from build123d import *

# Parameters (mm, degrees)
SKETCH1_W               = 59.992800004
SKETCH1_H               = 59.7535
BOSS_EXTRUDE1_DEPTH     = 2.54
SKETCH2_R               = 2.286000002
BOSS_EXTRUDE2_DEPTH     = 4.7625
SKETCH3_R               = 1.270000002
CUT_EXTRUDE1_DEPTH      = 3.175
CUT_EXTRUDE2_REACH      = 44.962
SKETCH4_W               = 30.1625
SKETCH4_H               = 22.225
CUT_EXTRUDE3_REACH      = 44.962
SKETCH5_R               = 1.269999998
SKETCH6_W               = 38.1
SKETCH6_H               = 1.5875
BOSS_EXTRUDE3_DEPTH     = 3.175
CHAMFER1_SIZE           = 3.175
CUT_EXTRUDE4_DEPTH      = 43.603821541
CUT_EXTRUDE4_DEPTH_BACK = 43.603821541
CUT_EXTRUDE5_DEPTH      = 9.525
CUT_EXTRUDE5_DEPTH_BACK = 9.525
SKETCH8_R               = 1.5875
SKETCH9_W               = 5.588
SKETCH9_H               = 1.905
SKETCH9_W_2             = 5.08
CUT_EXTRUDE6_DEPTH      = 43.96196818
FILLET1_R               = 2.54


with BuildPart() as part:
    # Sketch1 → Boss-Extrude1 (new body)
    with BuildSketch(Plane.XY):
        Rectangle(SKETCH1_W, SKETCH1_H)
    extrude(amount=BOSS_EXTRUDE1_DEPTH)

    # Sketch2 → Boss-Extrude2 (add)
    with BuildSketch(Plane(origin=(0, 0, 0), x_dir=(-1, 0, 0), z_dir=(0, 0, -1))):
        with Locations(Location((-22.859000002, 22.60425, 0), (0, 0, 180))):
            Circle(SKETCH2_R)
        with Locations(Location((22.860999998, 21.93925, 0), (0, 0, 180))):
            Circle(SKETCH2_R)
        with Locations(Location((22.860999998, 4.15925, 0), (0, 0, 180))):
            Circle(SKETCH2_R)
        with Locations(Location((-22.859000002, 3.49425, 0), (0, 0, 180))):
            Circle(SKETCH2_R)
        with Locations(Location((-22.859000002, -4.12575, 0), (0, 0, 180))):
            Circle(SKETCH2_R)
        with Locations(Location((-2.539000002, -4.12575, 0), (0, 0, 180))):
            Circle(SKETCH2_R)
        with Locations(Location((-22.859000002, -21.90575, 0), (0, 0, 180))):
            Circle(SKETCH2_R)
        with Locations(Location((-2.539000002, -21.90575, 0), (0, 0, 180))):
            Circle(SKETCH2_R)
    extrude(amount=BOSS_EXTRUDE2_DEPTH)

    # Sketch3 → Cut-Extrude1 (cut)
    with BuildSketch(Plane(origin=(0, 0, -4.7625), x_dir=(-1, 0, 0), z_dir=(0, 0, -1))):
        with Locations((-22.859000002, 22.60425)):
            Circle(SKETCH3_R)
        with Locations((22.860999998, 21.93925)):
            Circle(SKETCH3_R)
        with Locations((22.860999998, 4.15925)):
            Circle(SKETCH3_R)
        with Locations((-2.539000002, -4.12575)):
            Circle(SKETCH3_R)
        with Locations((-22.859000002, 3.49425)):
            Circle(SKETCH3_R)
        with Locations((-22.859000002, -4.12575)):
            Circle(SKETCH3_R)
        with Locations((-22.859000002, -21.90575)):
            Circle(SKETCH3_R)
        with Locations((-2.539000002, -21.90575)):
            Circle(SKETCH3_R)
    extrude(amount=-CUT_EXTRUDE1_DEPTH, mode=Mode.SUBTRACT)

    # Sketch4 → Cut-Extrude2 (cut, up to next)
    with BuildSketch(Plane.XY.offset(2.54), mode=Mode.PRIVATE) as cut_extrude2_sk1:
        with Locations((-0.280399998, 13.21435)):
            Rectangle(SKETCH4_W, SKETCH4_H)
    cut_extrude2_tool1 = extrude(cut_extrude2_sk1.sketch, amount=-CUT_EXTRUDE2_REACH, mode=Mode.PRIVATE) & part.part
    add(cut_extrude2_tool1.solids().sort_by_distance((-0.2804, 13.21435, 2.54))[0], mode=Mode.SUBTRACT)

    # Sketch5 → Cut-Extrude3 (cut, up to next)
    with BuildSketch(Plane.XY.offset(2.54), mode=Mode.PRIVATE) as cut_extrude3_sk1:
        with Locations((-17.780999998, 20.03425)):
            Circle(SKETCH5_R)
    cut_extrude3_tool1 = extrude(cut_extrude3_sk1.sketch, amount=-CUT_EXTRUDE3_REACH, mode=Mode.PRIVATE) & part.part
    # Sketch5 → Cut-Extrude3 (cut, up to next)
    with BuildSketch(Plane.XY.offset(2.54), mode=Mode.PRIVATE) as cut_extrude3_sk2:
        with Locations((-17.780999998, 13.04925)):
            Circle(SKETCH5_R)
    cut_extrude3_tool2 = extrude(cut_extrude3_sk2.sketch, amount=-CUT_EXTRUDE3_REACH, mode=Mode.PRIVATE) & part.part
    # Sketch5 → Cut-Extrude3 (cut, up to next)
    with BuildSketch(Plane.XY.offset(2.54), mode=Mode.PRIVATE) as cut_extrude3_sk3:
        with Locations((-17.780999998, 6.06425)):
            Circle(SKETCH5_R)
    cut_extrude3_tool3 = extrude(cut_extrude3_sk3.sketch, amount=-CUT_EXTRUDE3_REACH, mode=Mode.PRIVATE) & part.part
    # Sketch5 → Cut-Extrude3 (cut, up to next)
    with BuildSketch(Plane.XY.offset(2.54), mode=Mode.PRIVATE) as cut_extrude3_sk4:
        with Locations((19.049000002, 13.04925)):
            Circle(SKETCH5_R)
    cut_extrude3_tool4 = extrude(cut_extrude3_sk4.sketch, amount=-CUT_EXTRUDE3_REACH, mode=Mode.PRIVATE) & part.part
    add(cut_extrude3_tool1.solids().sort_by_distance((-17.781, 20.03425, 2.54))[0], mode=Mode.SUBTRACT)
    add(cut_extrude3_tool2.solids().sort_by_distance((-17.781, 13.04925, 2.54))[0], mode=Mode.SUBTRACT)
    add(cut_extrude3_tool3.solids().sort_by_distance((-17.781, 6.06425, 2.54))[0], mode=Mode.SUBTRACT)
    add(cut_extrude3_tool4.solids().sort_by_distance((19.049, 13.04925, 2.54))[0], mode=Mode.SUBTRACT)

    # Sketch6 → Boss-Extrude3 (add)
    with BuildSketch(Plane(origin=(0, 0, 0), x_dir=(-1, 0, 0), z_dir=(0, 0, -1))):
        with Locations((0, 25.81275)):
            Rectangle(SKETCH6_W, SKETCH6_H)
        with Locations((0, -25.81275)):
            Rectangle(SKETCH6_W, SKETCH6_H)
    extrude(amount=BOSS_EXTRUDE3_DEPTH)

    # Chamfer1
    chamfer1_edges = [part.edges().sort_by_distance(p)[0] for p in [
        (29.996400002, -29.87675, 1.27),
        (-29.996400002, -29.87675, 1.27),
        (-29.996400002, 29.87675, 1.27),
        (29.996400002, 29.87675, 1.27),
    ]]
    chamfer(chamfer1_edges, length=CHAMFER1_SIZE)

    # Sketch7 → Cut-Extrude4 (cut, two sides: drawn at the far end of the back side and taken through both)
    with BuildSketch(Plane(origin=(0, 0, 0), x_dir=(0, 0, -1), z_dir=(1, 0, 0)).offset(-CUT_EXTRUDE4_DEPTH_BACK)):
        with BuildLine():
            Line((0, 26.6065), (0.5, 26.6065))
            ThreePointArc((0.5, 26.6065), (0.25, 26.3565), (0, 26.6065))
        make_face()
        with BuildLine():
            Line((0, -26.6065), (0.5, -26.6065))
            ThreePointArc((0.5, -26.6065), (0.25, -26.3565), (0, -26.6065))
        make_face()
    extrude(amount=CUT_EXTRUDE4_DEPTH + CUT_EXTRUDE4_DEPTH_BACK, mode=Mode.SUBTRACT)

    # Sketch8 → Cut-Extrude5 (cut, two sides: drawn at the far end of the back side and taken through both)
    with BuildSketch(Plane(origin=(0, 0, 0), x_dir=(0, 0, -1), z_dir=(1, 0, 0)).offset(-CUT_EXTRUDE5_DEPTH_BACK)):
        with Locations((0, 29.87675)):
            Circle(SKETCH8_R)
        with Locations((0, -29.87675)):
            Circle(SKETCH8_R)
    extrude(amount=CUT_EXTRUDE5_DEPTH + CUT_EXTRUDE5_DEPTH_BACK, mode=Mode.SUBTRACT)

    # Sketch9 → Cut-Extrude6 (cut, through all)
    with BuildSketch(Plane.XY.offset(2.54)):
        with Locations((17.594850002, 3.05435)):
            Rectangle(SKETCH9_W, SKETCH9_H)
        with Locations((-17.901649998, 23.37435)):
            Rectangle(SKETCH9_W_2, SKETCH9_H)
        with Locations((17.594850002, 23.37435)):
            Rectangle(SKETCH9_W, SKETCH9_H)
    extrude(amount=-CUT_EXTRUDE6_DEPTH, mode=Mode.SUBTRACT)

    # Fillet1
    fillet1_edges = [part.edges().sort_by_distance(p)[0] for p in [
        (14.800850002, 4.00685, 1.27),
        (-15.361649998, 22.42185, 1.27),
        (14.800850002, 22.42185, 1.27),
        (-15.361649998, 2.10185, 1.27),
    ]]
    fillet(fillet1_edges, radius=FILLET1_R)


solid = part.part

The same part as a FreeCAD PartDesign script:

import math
import FreeCAD as App
import Part
import Sketcher
Q = App.Units.Quantity


def edges_at(feature, points):
    """Names of the edges that pass closest to the given points."""
    edges = feature.Shape.Edges
    near = lambda p: min(range(len(edges)), key=lambda i: edges[i].distToShape(Part.Vertex(*p))[0])
    return sorted({f"Edge{near(p) + 1}" for p in points})

doc = App.newDocument("Part")
body = doc.addObject("PartDesign::Body", "Body")

sketch1 = body.newObject("Sketcher::SketchObject", "Sketch")
sketch1.AttachmentSupport = (doc.getObject("XY_Plane"), [""])
sketch1.MapMode = "FlatFace"
sketch1.addGeometry([
    Part.LineSegment(App.Vector(-30, 30, 0), App.Vector(-30, -30, 0)),
    Part.LineSegment(App.Vector(-30, -30, 0), App.Vector(30, -30, 0)),
    Part.LineSegment(App.Vector(30, -30, 0), App.Vector(30, 30, 0)),
    Part.LineSegment(App.Vector(30, 30, 0), App.Vector(-30, 30, 0)),
], False)
sketch1.addConstraint([
    Sketcher.Constraint("Coincident", 0, 2, 1, 1),
    Sketcher.Constraint("Coincident", 1, 2, 2, 1),
    Sketcher.Constraint("Coincident", 2, 2, 3, 1),
    Sketcher.Constraint("Coincident", 3, 2, 0, 1),
    Sketcher.Constraint("Vertical", 0),
    Sketcher.Constraint("Horizontal", 1),
    Sketcher.Constraint("Vertical", 2),
    Sketcher.Constraint("Horizontal", 3),
    Sketcher.Constraint("Symmetric", 0, 2, 2, 2, -1, 1),
    Sketcher.Constraint("DistanceY", 0, 2, 0, 1, Q("2.3525 in")),
    Sketcher.Constraint("DistanceX", 1, 1, 1, 2, Q("59.9928 mm")),
])
pad1 = body.newObject("PartDesign::Pad", "Pad")
pad1.Profile = sketch1
pad1.Length = Q("0.1 in")

sketch2 = body.newObject("Sketcher::SketchObject", "Sketch001")
sketch2.AttachmentSupport = (doc.getObject("XY_Plane"), [""])
sketch2.MapMode = "FlatFace"
sketch2.addGeometry([
    Part.Circle(App.Vector(22.9, 22.6, 0), App.Vector(0, 0, 1), 2.3),
    Part.Circle(App.Vector(-22.9, 21.9, 0), App.Vector(0, 0, 1), 2.3),
    Part.Circle(App.Vector(-22.9, 4.2, 0), App.Vector(0, 0, 1), 2.3),
    Part.Circle(App.Vector(22.9, 3.5, 0), App.Vector(0, 0, 1), 2.3),
    Part.Circle(App.Vector(22.9, -4.1, 0), App.Vector(0, 0, 1), 2.3),
    Part.Circle(App.Vector(2.5, -4.1, 0), App.Vector(0, 0, 1), 2.3),
    Part.Circle(App.Vector(22.9, -21.9, 0), App.Vector(0, 0, 1), 2.3),
    Part.Circle(App.Vector(2.5, -21.9, 0), App.Vector(0, 0, 1), 2.3),
], False)
sketch2.addConstraint([
    Sketcher.Constraint("Equal", 0, 1),
    Sketcher.Constraint("Equal", 1, 2),
    Sketcher.Constraint("Equal", 2, 3),
    Sketcher.Constraint("Equal", 3, 4),
    Sketcher.Constraint("Equal", 4, 5),
    Sketcher.Constraint("Equal", 5, 6),
    Sketcher.Constraint("Equal", 6, 7),
    Sketcher.Constraint("Horizontal", 4, 3, 5, 3),
    Sketcher.Constraint("Horizontal", 6, 3, 7, 3),
    Sketcher.Constraint("Vertical", 1, 3, 2, 3),
    Sketcher.Constraint("Vertical", 0, 3, 3, 3),
    Sketcher.Constraint("Vertical", 3, 3, 4, 3),
    Sketcher.Constraint("Vertical", 4, 3, 6, 3),
    Sketcher.Constraint("Vertical", 5, 3, 7, 3),
    Sketcher.Constraint("Diameter", 0, Q("0.18 in")),
    Sketcher.Constraint("DistanceX", 2, 3, 5, 3, Q("1 in")),
    Sketcher.Constraint("DistanceY", 6, 3, 3, 3, Q("1 in")),
    Sketcher.Constraint("DistanceX", 1, 3, 0, 3, Q("1.8 in")),
    Sketcher.Constraint("DistanceY", 2, 3, 1, 3, Q("0.7 in")),
    Sketcher.Constraint("DistanceY", 4, 3, 3, 3, Q("0.3 in")),
    Sketcher.Constraint("DistanceX", -1, 1, 0, 3, Q("22.859 mm")),
    Sketcher.Constraint("DistanceY", 1, 3, 0, 3, Q("0.665 mm")),
    Sketcher.Constraint("DistanceY", 3, 3, 0, 3, Q("19.11 mm")),
    Sketcher.Constraint("DistanceY", -1, 1, 0, 3, Q("22.60425 mm")),
])
pad2 = body.newObject("PartDesign::Pad", "Pad001")
pad2.Profile = sketch2
pad2.Length = Q("0.1875 in")
pad2.Reversed = True

sketch3 = body.newObject("Sketcher::SketchObject", "Sketch002")
sketch3.AttachmentSupport = (doc.getObject("XY_Plane"), [""])
sketch3.MapMode = "FlatFace"
sketch3.AttachmentOffset = App.Placement(App.Vector(0, 0, -0.1875 * 25.4), App.Rotation())
sketch3.addGeometry([
    Part.Circle(App.Vector(22.9, 22.6, 0), App.Vector(0, 0, 1), 1.3),
    Part.Circle(App.Vector(-22.9, 21.9, 0), App.Vector(0, 0, 1), 1.3),
    Part.Circle(App.Vector(-22.9, 4.2, 0), App.Vector(0, 0, 1), 1.3),
    Part.Circle(App.Vector(2.5, -4.1, 0), App.Vector(0, 0, 1), 1.3),
    Part.Circle(App.Vector(22.9, 3.5, 0), App.Vector(0, 0, 1), 1.3),
    Part.Circle(App.Vector(22.9, -4.1, 0), App.Vector(0, 0, 1), 1.3),
    Part.Circle(App.Vector(22.9, -21.9, 0), App.Vector(0, 0, 1), 1.3),
    Part.Circle(App.Vector(2.5, -21.9, 0), App.Vector(0, 0, 1), 1.3),
], False)
sketch3.addConstraint([
    Sketcher.Constraint("Equal", 0, 1),
    Sketcher.Constraint("Equal", 1, 2),
    Sketcher.Constraint("Equal", 2, 3),
    Sketcher.Constraint("Equal", 3, 4),
    Sketcher.Constraint("Equal", 4, 5),
    Sketcher.Constraint("Equal", 5, 6),
    Sketcher.Constraint("Equal", 6, 7),
    Sketcher.Constraint("Horizontal", 3, 3, 5, 3),
    Sketcher.Constraint("Horizontal", 6, 3, 7, 3),
    Sketcher.Constraint("Vertical", 1, 3, 2, 3),
    Sketcher.Constraint("Vertical", 0, 3, 4, 3),
    Sketcher.Constraint("Vertical", 4, 3, 5, 3),
    Sketcher.Constraint("Vertical", 5, 3, 6, 3),
    Sketcher.Constraint("Vertical", 3, 3, 7, 3),
    Sketcher.Constraint("Diameter", 0, Q("0.1 in")),
    Sketcher.Constraint("DistanceX", 2, 3, 3, 3, Q("1 in")),
    Sketcher.Constraint("DistanceY", 6, 3, 4, 3, Q("1 in")),
    Sketcher.Constraint("DistanceX", 1, 3, 0, 3, Q("1.8 in")),
    Sketcher.Constraint("DistanceY", 2, 3, 1, 3, Q("0.7 in")),
    Sketcher.Constraint("DistanceY", 3, 3, 4, 3, Q("0.3 in")),
    Sketcher.Constraint("DistanceX", -1, 1, 0, 3, Q("22.859 mm")),
    Sketcher.Constraint("DistanceY", 1, 3, 0, 3, Q("0.665 mm")),
    Sketcher.Constraint("DistanceY", 3, 3, 2, 3, Q("8.285 mm")),
    Sketcher.Constraint("DistanceY", -1, 1, 0, 3, Q("22.60425 mm")),
])
pocket1 = body.newObject("PartDesign::Pocket", "Pocket")
pocket1.Profile = sketch3
pocket1.Length = Q("0.125 in")
pocket1.Reversed = True

sketch4 = body.newObject("Sketcher::SketchObject", "Sketch003")
sketch4.AttachmentSupport = (doc.getObject("XY_Plane"), [""])
sketch4.MapMode = "FlatFace"
sketch4.AttachmentOffset = App.Placement(App.Vector(0, 0, 0.1 * 25.4), App.Rotation())
sketch4.addGeometry([
    Part.LineSegment(App.Vector(-15, 24, 0), App.Vector(-15, 2, 0)),
    Part.LineSegment(App.Vector(-15, 2, 0), App.Vector(15, 2, 0)),
    Part.LineSegment(App.Vector(15, 2, 0), App.Vector(15, 24, 0)),
    Part.LineSegment(App.Vector(15, 24, 0), App.Vector(-15, 24, 0)),
], False)
sketch4.addConstraint([
    Sketcher.Constraint("Coincident", 0, 2, 1, 1),
    Sketcher.Constraint("Coincident", 1, 2, 2, 1),
    Sketcher.Constraint("Coincident", 2, 2, 3, 1),
    Sketcher.Constraint("Coincident", 3, 2, 0, 1),
    Sketcher.Constraint("Vertical", 0),
    Sketcher.Constraint("Horizontal", 1),
    Sketcher.Constraint("Vertical", 2),
    Sketcher.Constraint("Horizontal", 3),
    Sketcher.Constraint("DistanceX", 1, 1, 1, 2, Q("1.1875 in")),
    Sketcher.Constraint("DistanceY", 0, 2, 0, 1, Q("0.875 in")),
    Sketcher.Constraint("DistanceX", 0, 2, -1, 1, Q("15.36165 mm")),
    Sketcher.Constraint("DistanceY", -1, 1, 0, 2, Q("2.10185 mm")),
])
pocket2 = body.newObject("PartDesign::Pocket", "Pocket001")
pocket2.Profile = sketch4
pocket2.Type = "UpToFirst"

sketch5 = body.newObject("Sketcher::SketchObject", "Sketch004")
sketch5.AttachmentSupport = (doc.getObject("XY_Plane"), [""])
sketch5.MapMode = "FlatFace"
sketch5.AttachmentOffset = App.Placement(App.Vector(0, 0, 0.1 * 25.4), App.Rotation())
sketch5.addGeometry(Part.Circle(App.Vector(-17.8, 20, 0), App.Vector(0, 0, 1), 1.3), False)
sketch5.addConstraint([
    Sketcher.Constraint("Diameter", 0, Q("0.1 in")),
    Sketcher.Constraint("DistanceX", 0, 3, -1, 1, Q("17.781 mm")),
    Sketcher.Constraint("DistanceY", -1, 1, 0, 3, Q("20.03425 mm")),
])
pocket3 = body.newObject("PartDesign::Pocket", "Pocket002")
pocket3.Profile = sketch5
pocket3.Type = "UpToFirst"

sketch6 = body.newObject("Sketcher::SketchObject", "Sketch005")
sketch6.AttachmentSupport = (doc.getObject("XY_Plane"), [""])
sketch6.MapMode = "FlatFace"
sketch6.AttachmentOffset = App.Placement(App.Vector(0, 0, 0.1 * 25.4), App.Rotation())
sketch6.addGeometry(Part.Circle(App.Vector(-17.8, 13, 0), App.Vector(0, 0, 1), 1.3), False)
sketch6.addConstraint([
    Sketcher.Constraint("Diameter", 0, Q("0.1 in")),
    Sketcher.Constraint("DistanceX", 0, 3, -1, 1, Q("17.781 mm")),
    Sketcher.Constraint("DistanceY", -1, 1, 0, 3, Q("13.04925 mm")),
])
pocket4 = body.newObject("PartDesign::Pocket", "Pocket003")
pocket4.Profile = sketch6
pocket4.Type = "UpToFirst"

sketch7 = body.newObject("Sketcher::SketchObject", "Sketch006")
sketch7.AttachmentSupport = (doc.getObject("XY_Plane"), [""])
sketch7.MapMode = "FlatFace"
sketch7.AttachmentOffset = App.Placement(App.Vector(0, 0, 0.1 * 25.4), App.Rotation())
sketch7.addGeometry(Part.Circle(App.Vector(-17.8, 6.1, 0), App.Vector(0, 0, 1), 1.3), False)
sketch7.addConstraint([
    Sketcher.Constraint("Diameter", 0, Q("0.1 in")),
    Sketcher.Constraint("DistanceX", 0, 3, -1, 1, Q("17.781 mm")),
    Sketcher.Constraint("DistanceY", -1, 1, 0, 3, Q("6.06425 mm")),
])
pocket5 = body.newObject("PartDesign::Pocket", "Pocket004")
pocket5.Profile = sketch7
pocket5.Type = "UpToFirst"

sketch8 = body.newObject("Sketcher::SketchObject", "Sketch007")
sketch8.AttachmentSupport = (doc.getObject("XY_Plane"), [""])
sketch8.MapMode = "FlatFace"
sketch8.AttachmentOffset = App.Placement(App.Vector(0, 0, 0.1 * 25.4), App.Rotation())
sketch8.addGeometry(Part.Circle(App.Vector(19, 13, 0), App.Vector(0, 0, 1), 1.3), False)
sketch8.addConstraint([
    Sketcher.Constraint("Diameter", 0, Q("0.1 in")),
    Sketcher.Constraint("DistanceX", -1, 1, 0, 3, Q("19.049 mm")),
    Sketcher.Constraint("DistanceY", -1, 1, 0, 3, Q("13.04925 mm")),
])
pocket6 = body.newObject("PartDesign::Pocket", "Pocket005")
pocket6.Profile = sketch8
pocket6.Type = "UpToFirst"

sketch9 = body.newObject("Sketcher::SketchObject", "Sketch008")
sketch9.AttachmentSupport = (doc.getObject("XY_Plane"), [""])
sketch9.MapMode = "FlatFace"
sketch9.addGeometry([
    Part.LineSegment(App.Vector(19.1, 26.6, 0), App.Vector(19.1, 25, 0)),
    Part.LineSegment(App.Vector(19.1, 25, 0), App.Vector(-19.1, 25, 0)),
    Part.LineSegment(App.Vector(-19.1, 25, 0), App.Vector(-19.1, 26.6, 0)),
    Part.LineSegment(App.Vector(-19.1, 26.6, 0), App.Vector(19.1, 26.6, 0)),
    Part.LineSegment(App.Vector(19.1, -25, 0), App.Vector(19.1, -26.6, 0)),
    Part.LineSegment(App.Vector(19.1, -26.6, 0), App.Vector(-19.1, -26.6, 0)),
    Part.LineSegment(App.Vector(-19.1, -26.6, 0), App.Vector(-19.1, -25, 0)),
    Part.LineSegment(App.Vector(-19.1, -25, 0), App.Vector(19.1, -25, 0)),
], False)
sketch9.addConstraint([
    Sketcher.Constraint("Coincident", 0, 2, 1, 1),
    Sketcher.Constraint("Coincident", 1, 2, 2, 1),
    Sketcher.Constraint("Coincident", 2, 2, 3, 1),
    Sketcher.Constraint("Coincident", 3, 2, 0, 1),
    Sketcher.Constraint("Coincident", 4, 2, 5, 1),
    Sketcher.Constraint("Coincident", 5, 2, 6, 1),
    Sketcher.Constraint("Coincident", 6, 2, 7, 1),
    Sketcher.Constraint("Coincident", 7, 2, 4, 1),
    Sketcher.Constraint("Vertical", 0),
    Sketcher.Constraint("Horizontal", 1),
    Sketcher.Constraint("Vertical", 2),
    Sketcher.Constraint("Horizontal", 3),
    Sketcher.Constraint("Vertical", 4),
    Sketcher.Constraint("Horizontal", 5),
    Sketcher.Constraint("Vertical", 6),
    Sketcher.Constraint("Horizontal", 7),
    Sketcher.Constraint("Symmetric", 2, 2, 4, 2, -1, 1),
    Sketcher.Constraint("Symmetric", 0, 2, 6, 2, -1, 1),
    Sketcher.Constraint("Vertical", 3, 2, 4, 2),
    Sketcher.Constraint("DistanceX", 1, 2, 1, 1, Q("1.5 in")),
    Sketcher.Constraint("DistanceY", 0, 2, 0, 1, Q("0.0625 in")),
    Sketcher.Constraint("DistanceY", 6, 2, 1, 2, Q("1.97 in")),
])
pad3 = body.newObject("PartDesign::Pad", "Pad002")
pad3.Profile = sketch9
pad3.Length = Q("0.125 in")
pad3.Reversed = True
doc.recompute()

chamfer = body.newObject("PartDesign::Chamfer", "Chamfer")
chamfer.Base = (pad3, edges_at(pad3, [
    (29.996, -29.877, 1.27),
    (-29.996, -29.877, 1.27),
    (-29.996, 29.877, 1.27),
    (29.996, 29.877, 1.27),
]))
chamfer.Size = Q("0.125 in")

sketch10 = body.newObject("Sketcher::SketchObject", "Sketch009")
sketch10.AttachmentSupport = (doc.getObject("YZ_Plane"), [""])
sketch10.MapMode = "FlatFace"
sketch10.addGeometry([
    Part.LineSegment(App.Vector(26.61, -0.5, 0), App.Vector(26.61, 0, 0)),
    Part.ArcOfCircle(Part.Circle(App.Vector(26.61, -0.25, 0), App.Vector(0, 0, 1), 0.25), math.radians(90), math.radians(270)),
    Part.LineSegment(App.Vector(-26.61, 0, 0), App.Vector(-26.61, -0.5, 0)),
    Part.ArcOfCircle(Part.Circle(App.Vector(-26.61, -0.25, 0), App.Vector(0, 0, 1), 0.25), math.radians(-90), math.radians(90)),
], False)
sketch10.addConstraint([
    Sketcher.Constraint("Coincident", 0, 1, 1, 2),
    Sketcher.Constraint("Coincident", 1, 1, 0, 2),
    Sketcher.Constraint("Coincident", 2, 1, 3, 2),
    Sketcher.Constraint("Coincident", 3, 1, 2, 2),
    Sketcher.Constraint("Vertical", 0),
    Sketcher.Constraint("Vertical", 2),
    Sketcher.Constraint("Equal", 1, 3),
    Sketcher.Constraint("Symmetric", 1, 1, 2, 1, -1, 1),
    Sketcher.Constraint("Symmetric", 1, 3, 3, 3, -2),
    Sketcher.Constraint("Vertical", 1, 3, 0, 1),
    Sketcher.Constraint("Radius", 1, Q("0.25 mm")),
    Sketcher.Constraint("DistanceX", 3, 3, 1, 3, Q("2.095 in")),
])
pocket7 = body.newObject("PartDesign::Pocket", "Pocket006")
pocket7.Profile = sketch10
pocket7.Type = "ThroughAll"
pocket7.Midplane = True

sketch11 = body.newObject("Sketcher::SketchObject", "Sketch010")
sketch11.AttachmentSupport = (doc.getObject("YZ_Plane"), [""])
sketch11.MapMode = "FlatFace"
sketch11.addGeometry([
    Part.Circle(App.Vector(29.9, 0, 0), App.Vector(0, 0, 1), 1.6),
    Part.Circle(App.Vector(-29.9, 0, 0), App.Vector(0, 0, 1), 1.6),
], False)
sketch11.addConstraint([
    Sketcher.Constraint("Equal", 0, 1),
    Sketcher.Constraint("Symmetric", 0, 3, 1, 3, -1, 1),
    Sketcher.Constraint("PointOnObject", 0, 3, -1),
    Sketcher.Constraint("Diameter", 0, Q("0.125 in")),
    Sketcher.Constraint("DistanceX", 1, 3, 0, 3, Q("2.3525 in")),
])
pocket8 = body.newObject("PartDesign::Pocket", "Pocket007")
pocket8.Profile = sketch11
pocket8.Type = "TwoLengths"
pocket8.Length = Q("0.375 in")
pocket8.Length2 = Q("0.375 in")
pocket8.Reversed = True

sketch12 = body.newObject("Sketcher::SketchObject", "Sketch011")
sketch12.AttachmentSupport = (doc.getObject("XY_Plane"), [""])
sketch12.MapMode = "FlatFace"
sketch12.AttachmentOffset = App.Placement(App.Vector(0, 0, 0.1 * 25.4), App.Rotation())
sketch12.addGeometry([
    Part.LineSegment(App.Vector(14.8, 4, 0), App.Vector(14.8, 2.1, 0)),
    Part.LineSegment(App.Vector(14.8, 2.1, 0), App.Vector(20.4, 2.1, 0)),
    Part.LineSegment(App.Vector(20.4, 2.1, 0), App.Vector(20.4, 4, 0)),
    Part.LineSegment(App.Vector(20.4, 4, 0), App.Vector(14.8, 4, 0)),
    Part.LineSegment(App.Vector(-20.4, 24.3, 0), App.Vector(-20.4, 22.4, 0)),
    Part.LineSegment(App.Vector(-20.4, 22.4, 0), App.Vector(-15.4, 22.4, 0)),
    Part.LineSegment(App.Vector(-15.4, 22.4, 0), App.Vector(-15.4, 24.3, 0)),
    Part.LineSegment(App.Vector(-15.4, 24.3, 0), App.Vector(-20.4, 24.3, 0)),
    Part.LineSegment(App.Vector(14.8, 24.3, 0), App.Vector(14.8, 22.4, 0)),
    Part.LineSegment(App.Vector(14.8, 22.4, 0), App.Vector(20.4, 22.4, 0)),
    Part.LineSegment(App.Vector(20.4, 22.4, 0), App.Vector(20.4, 24.3, 0)),
    Part.LineSegment(App.Vector(20.4, 24.3, 0), App.Vector(14.8, 24.3, 0)),
], False)
sketch12.addConstraint([
    Sketcher.Constraint("Coincident", 0, 2, 1, 1),
    Sketcher.Constraint("Coincident", 1, 2, 2, 1),
    Sketcher.Constraint("Coincident", 2, 2, 3, 1),
    Sketcher.Constraint("Coincident", 3, 2, 0, 1),
    Sketcher.Constraint("Coincident", 4, 2, 5, 1),
    Sketcher.Constraint("Coincident", 5, 2, 6, 1),
    Sketcher.Constraint("Coincident", 6, 2, 7, 1),
    Sketcher.Constraint("Coincident", 7, 2, 4, 1),
    Sketcher.Constraint("Coincident", 8, 2, 9, 1),
    Sketcher.Constraint("Coincident", 9, 2, 10, 1),
    Sketcher.Constraint("Coincident", 10, 2, 11, 1),
    Sketcher.Constraint("Coincident", 11, 2, 8, 1),
    Sketcher.Constraint("Vertical", 0),
    Sketcher.Constraint("Horizontal", 1),
    Sketcher.Constraint("Vertical", 2),
    Sketcher.Constraint("Horizontal", 3),
    Sketcher.Constraint("Vertical", 4),
    Sketcher.Constraint("Horizontal", 5),
    Sketcher.Constraint("Vertical", 6),
    Sketcher.Constraint("Horizontal", 7),
    Sketcher.Constraint("Vertical", 8),
    Sketcher.Constraint("Horizontal", 9),
    Sketcher.Constraint("Vertical", 10),
    Sketcher.Constraint("Horizontal", 11),
    Sketcher.Constraint("Horizontal", 5, 2, 8, 2),
    Sketcher.Constraint("Horizontal", 7, 2, 10, 2),
    Sketcher.Constraint("Vertical", 3, 2, 8, 2),
    Sketcher.Constraint("Vertical", 2, 2, 9, 2),
    Sketcher.Constraint("Equal", 2, 4),
    Sketcher.Constraint("DistanceX", 5, 1, 5, 2, Q("0.2 in")),
    Sketcher.Constraint("DistanceX", 1, 1, 1, 2, Q("0.22 in")),
    Sketcher.Constraint("DistanceY", 0, 2, 4, 2, Q("0.8 in")),
    Sketcher.Constraint("DistanceY", 0, 2, 0, 1, Q("0.075 in")),
    Sketcher.Constraint("DistanceX", 5, 2, 3, 2, Q("1.1875 in")),
    Sketcher.Constraint("DistanceX", -1, 1, 0, 2, Q("14.80085 mm")),
    Sketcher.Constraint("DistanceY", -1, 1, 0, 2, Q("2.10185 mm")),
])
pocket9 = body.newObject("PartDesign::Pocket", "Pocket008")
pocket9.Profile = sketch12
pocket9.Type = "ThroughAll"
doc.recompute()

fillet = body.newObject("PartDesign::Fillet", "Fillet")
fillet.Base = (pocket9, edges_at(pocket9, [
    (14.801, 4.007, 1.27),
    (-15.362, 22.422, 1.27),
    (14.801, 22.422, 1.27),
    (-15.362, 2.102, 1.27),
]))
fillet.Radius = Q("0.1 in")

doc.recompute()
